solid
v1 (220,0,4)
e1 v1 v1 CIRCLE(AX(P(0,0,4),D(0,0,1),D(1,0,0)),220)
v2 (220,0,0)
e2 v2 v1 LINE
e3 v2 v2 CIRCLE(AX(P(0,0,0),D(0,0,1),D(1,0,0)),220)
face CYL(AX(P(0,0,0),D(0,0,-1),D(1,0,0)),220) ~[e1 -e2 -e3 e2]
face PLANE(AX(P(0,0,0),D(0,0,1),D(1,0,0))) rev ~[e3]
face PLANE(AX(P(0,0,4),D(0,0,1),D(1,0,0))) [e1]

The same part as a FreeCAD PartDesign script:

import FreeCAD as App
import Part
import Sketcher
from FreeCAD import Vector
Q = App.Units.Quantity

doc = App.newDocument("Part")
body = doc.addObject("PartDesign::Body", "Body")

# Sketch on XY plane
sketch1 = body.newObject("Sketcher::SketchObject", "Sketch")
sketch1.AttachmentSupport = (doc.getObject("XY_Plane"), [""])
sketch1.MapMode = "FlatFace"
sketch1.addGeometry(Part.Circle(Vector(0, 0, 0), Vector(0, 0, 1), 220), False)
sketch1.addConstraint([
    Sketcher.Constraint("Coincident", 0, 3, -1, 1),
    Sketcher.Constraint("Diameter", 0, Q("440 mm")),
])
pad1 = body.newObject("PartDesign::Pad", "Pad")
pad1.Profile = sketch1
pad1.Length = 4

doc.recompute()
